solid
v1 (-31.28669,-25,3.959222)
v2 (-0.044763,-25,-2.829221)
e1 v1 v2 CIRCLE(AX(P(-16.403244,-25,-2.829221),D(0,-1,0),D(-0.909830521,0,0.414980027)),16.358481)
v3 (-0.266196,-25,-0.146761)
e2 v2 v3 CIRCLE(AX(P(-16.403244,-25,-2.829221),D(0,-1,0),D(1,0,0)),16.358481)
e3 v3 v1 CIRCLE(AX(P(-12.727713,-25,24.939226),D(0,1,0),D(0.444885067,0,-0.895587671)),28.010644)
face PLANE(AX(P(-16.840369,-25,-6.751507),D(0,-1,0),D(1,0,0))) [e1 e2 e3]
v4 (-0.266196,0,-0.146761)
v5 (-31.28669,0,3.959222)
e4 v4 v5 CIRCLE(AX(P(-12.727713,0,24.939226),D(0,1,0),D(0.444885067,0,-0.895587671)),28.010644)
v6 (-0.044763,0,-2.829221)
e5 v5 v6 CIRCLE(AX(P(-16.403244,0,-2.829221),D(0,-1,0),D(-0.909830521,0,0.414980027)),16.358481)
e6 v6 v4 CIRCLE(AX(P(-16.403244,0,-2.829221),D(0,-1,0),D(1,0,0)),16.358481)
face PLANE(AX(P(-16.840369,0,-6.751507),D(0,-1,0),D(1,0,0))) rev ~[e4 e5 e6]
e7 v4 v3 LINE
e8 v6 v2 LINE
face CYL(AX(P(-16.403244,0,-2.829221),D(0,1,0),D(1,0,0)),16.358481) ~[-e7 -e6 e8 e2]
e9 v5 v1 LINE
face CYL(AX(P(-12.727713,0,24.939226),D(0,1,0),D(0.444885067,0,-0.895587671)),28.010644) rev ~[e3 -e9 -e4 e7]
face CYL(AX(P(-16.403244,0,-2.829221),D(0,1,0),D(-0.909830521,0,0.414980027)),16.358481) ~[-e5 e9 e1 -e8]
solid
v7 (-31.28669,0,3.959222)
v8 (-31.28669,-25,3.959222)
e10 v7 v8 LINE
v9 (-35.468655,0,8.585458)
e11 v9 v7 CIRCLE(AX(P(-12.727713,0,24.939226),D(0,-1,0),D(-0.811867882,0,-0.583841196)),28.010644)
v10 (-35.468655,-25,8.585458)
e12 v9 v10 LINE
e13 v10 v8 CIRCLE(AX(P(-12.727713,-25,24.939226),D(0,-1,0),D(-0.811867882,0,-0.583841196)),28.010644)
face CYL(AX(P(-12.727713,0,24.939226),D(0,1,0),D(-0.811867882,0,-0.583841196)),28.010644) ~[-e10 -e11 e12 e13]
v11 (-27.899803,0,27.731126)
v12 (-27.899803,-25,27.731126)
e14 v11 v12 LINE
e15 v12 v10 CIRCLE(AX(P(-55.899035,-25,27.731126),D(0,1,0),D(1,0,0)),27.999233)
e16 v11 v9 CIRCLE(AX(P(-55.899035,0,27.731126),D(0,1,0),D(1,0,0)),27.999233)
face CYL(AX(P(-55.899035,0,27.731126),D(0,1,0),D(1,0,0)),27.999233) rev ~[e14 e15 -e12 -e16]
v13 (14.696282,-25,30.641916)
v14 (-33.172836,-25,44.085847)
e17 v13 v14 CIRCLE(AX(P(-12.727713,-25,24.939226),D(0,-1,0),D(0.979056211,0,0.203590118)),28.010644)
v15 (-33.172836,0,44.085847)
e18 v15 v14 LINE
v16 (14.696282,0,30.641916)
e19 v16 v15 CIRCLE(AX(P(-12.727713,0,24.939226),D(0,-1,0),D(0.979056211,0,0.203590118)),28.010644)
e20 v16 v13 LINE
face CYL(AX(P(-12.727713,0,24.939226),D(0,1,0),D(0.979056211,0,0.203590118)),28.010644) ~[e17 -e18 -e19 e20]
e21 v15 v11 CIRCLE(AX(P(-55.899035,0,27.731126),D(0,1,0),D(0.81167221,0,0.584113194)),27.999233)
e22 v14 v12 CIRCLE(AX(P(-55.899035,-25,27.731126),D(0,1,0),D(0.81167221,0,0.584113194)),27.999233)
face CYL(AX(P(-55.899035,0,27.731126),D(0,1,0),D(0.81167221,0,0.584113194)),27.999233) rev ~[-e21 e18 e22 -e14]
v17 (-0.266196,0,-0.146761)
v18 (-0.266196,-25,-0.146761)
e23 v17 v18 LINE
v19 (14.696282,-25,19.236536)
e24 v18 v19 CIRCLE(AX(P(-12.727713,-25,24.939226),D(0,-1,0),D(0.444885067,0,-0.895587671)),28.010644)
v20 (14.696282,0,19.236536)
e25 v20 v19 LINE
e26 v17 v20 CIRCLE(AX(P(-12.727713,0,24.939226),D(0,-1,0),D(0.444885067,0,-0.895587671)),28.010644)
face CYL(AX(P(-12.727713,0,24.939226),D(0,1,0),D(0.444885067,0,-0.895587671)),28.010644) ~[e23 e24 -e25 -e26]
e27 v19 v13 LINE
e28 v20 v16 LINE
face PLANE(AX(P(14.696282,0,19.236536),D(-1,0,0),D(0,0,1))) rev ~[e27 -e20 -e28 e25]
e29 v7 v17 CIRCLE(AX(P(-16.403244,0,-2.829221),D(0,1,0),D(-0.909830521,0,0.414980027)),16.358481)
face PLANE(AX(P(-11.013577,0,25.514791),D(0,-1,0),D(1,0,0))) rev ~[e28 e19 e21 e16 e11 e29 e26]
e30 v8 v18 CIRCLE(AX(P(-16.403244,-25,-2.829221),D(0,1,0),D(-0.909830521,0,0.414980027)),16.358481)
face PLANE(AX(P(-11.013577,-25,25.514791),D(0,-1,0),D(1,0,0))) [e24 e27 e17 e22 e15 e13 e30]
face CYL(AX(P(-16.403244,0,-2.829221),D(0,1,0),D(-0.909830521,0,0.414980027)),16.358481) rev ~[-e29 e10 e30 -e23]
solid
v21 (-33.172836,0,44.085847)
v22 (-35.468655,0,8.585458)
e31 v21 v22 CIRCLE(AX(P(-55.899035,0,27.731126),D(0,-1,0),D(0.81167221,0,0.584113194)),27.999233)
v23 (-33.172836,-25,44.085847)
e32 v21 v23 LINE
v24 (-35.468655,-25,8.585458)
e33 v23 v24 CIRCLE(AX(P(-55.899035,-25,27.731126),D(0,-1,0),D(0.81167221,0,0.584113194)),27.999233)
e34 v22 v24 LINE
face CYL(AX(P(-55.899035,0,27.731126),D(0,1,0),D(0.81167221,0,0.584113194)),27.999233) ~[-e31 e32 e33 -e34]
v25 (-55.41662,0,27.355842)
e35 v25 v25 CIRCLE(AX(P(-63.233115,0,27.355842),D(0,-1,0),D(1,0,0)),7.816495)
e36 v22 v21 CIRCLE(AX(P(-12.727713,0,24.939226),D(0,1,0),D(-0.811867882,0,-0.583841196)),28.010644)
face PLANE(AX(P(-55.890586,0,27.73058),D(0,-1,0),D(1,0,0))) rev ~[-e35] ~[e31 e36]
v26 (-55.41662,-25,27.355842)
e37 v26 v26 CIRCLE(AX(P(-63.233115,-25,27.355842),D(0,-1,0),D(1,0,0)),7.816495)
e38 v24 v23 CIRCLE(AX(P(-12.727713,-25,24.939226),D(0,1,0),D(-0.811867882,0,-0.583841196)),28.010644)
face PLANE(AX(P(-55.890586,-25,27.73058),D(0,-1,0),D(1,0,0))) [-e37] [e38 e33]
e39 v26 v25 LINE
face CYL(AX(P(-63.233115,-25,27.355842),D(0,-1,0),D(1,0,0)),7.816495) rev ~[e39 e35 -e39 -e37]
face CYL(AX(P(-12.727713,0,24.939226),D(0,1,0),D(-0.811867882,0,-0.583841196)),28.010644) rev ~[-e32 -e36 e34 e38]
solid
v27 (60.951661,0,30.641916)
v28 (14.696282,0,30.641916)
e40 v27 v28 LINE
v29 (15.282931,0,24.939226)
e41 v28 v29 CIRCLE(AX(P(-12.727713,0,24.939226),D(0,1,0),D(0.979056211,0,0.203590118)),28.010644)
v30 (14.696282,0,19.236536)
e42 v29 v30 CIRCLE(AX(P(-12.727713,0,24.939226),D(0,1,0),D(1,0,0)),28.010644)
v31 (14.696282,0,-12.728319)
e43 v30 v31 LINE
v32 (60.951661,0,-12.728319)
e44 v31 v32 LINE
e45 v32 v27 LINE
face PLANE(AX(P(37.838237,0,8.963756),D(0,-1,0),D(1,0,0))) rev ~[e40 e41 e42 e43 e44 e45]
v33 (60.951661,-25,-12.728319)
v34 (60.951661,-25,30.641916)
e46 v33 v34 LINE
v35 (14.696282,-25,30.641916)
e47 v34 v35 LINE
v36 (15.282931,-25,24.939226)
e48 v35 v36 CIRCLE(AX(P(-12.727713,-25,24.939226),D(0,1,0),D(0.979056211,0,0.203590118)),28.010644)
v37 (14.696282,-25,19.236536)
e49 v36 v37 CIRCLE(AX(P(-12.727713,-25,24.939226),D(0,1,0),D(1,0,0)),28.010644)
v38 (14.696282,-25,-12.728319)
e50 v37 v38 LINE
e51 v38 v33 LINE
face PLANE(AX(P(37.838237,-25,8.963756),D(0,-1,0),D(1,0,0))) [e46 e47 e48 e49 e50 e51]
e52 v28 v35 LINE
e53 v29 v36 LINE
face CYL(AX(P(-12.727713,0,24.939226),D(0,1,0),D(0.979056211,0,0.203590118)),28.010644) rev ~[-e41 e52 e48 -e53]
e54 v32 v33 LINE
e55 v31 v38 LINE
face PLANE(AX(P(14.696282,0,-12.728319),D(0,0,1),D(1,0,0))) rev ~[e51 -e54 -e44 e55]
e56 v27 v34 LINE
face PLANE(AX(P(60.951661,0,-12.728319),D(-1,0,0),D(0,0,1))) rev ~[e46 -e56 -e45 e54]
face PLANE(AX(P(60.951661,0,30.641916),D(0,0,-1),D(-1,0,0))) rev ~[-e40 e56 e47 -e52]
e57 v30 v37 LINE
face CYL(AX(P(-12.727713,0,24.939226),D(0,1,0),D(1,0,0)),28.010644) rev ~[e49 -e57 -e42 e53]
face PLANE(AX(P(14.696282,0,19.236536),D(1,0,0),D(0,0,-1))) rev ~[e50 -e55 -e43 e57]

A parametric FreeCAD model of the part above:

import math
import FreeCAD as App
import Part
import Sketcher

V = App.Vector

doc = App.newDocument("Part")
body = doc.addObject("PartDesign::Body", "Body")

sketch1 = body.newObject("Sketcher::SketchObject", "Sketch")
sketch1.AttachmentSupport = (doc.getObject("XZ_Plane"), [""])
sketch1.MapMode = "FlatFace"
sketch1.addGeometry(Part.ArcOfCircle(Part.Circle(V(-13, 25, 0), V(0, 0, 1), 28), math.radians(137), math.radians(216)), False)
sketch1.addGeometry(Part.ArcOfCircle(Part.Circle(V(-56, 28, 0), V(0, 0, 1), 28), math.radians(36), math.radians(317)), False)
sketch1.addConstraint(Sketcher.Constraint("Coincident", 0, 1, 1, 1))
sketch1.addConstraint(Sketcher.Constraint("Coincident", 1, 2, 0, 2))
sketch1.addConstraint(Sketcher.Constraint("Radius", 0, 28.010644))
sketch1.addConstraint(Sketcher.Constraint("Radius", 1, 27.999233))
sketch1.addConstraint(Sketcher.Constraint("DistanceY", 0, 3, 1, 3, 2.7919))
sketch1.addConstraint(Sketcher.Constraint("DistanceX", 1, 3, 0, 1, 22.726199))
sketch1.addConstraint(Sketcher.Constraint("DistanceY", -1, 1, 1, 2, 8.585458))
sketch1.addConstraint(Sketcher.Constraint("DistanceX", 0, 3, -1, 1, 12.727713))
pad1 = body.newObject("PartDesign::Pad", "Pad")
pad1.Profile = sketch1
pad1.Length = 25

sketch2 = body.newObject("Sketcher::SketchObject", "Sketch001")
sketch2.AttachmentSupport = (doc.getObject("XZ_Plane"), [""])
sketch2.MapMode = "FlatFace"
sketch2.AttachmentOffset = App.Placement(V(0, 0, 25), App.Rotation())
sketch2.addGeometry(Part.Circle(V(-63, 27, 0), V(0, 0, 1), 8), False)
sketch2.addConstraint(Sketcher.Constraint("Diameter", 0, 15.63299))
sketch2.addConstraint(Sketcher.Constraint("DistanceX", 0, 3, -1, 1, 63.233115))
sketch2.addConstraint(Sketcher.Constraint("DistanceY", -1, 1, 0, 3, 27.355842))
pocket1 = body.newObject("PartDesign::Pocket", "Pocket")
pocket1.Profile = sketch2
pocket1.Length = 25
body2 = doc.addObject("PartDesign::Body", "Body001")

sketch3 = body2.newObject("Sketcher::SketchObject", "Sketch002")
sketch3.AttachmentSupport = (doc.getObject("XZ_Plane001"), [""])
sketch3.MapMode = "FlatFace"
sketch3.addGeometry(Part.ArcOfCircle(Part.Circle(V(-56, 28, 0), V(0, 0, 1), 28), math.radians(0), math.radians(36)), False)
sketch3.addGeometry(Part.ArcOfCircle(Part.Circle(V(-56, 28, 0), V(0, 0, 1), 28), math.radians(-43), math.radians(0)), False)
sketch3.addGeometry(Part.ArcOfCircle(Part.Circle(V(-13, 25, 0), V(0, 0, 1), 28), math.radians(-144.28), math.radians(-131.5)), False)
sketch3.addGeometry(Part.ArcOfCircle(Part.Circle(V(-16, -3, 0), V(0, 0, 1), 16), math.radians(9), math.radians(155)), False)
sketch3.addGeometry(Part.ArcOfCircle(Part.Circle(V(-13, 25, 0), V(0, 0, 1), 28), math.radians(-64), math.radians(-12)), False)
sketch3.addGeometry(Part.LineSegment(V(15, 19, 0), V(15, 31, 0)), False)
sketch3.addGeometry(Part.ArcOfCircle(Part.Circle(V(-13, 25, 0), V(0, 0, 1), 28), math.radians(12), math.radians(137)), False)
sketch3.addConstraint(Sketcher.Constraint("Tangent", 0, 1, 1, 2))
sketch3.addConstraint(Sketcher.Constraint("Coincident", 1, 1, 2, 1))
sketch3.addConstraint(Sketcher.Constraint("Coincident", 2, 2, 3, 2))
sketch3.addConstraint(Sketcher.Constraint("Coincident", 3, 1, 4, 1))
sketch3.addConstraint(Sketcher.Constraint("Coincident", 4, 2, 5, 1))
sketch3.addConstraint(Sketcher.Constraint("Coincident", 5, 2, 6, 1))
sketch3.addConstraint(Sketcher.Constraint("Coincident", 6, 2, 0, 2))
sketch3.addConstraint(Sketcher.Constraint("Vertical", 5))
sketch3.addConstraint(Sketcher.Constraint("Coincident", 4, 3, 2, 3))
sketch3.addConstraint(Sketcher.Constraint("Coincident", 6, 3, 2, 3))
sketch3.addConstraint(Sketcher.Constraint("Equal", 0, 1))
sketch3.addConstraint(Sketcher.Constraint("Equal", 2, 4))
sketch3.addConstraint(Sketcher.Constraint("Equal", 4, 6))
sketch3.addConstraint(Sketcher.Constraint("Horizontal", 1, 3, 0, 1))
sketch3.addConstraint(Sketcher.Constraint("Radius", 3, 16.358481))
sketch3.addConstraint(Sketcher.Constraint("Radius", 0, 27.999233))
sketch3.addConstraint(Sketcher.Constraint("Radius", 2, 28.010644))
sketch3.addConstraint(Sketcher.Constraint("DistanceY", 5, 1, 5, 2, 11.405381))
sketch3.addConstraint(Sketcher.Constraint("DistanceY", 2, 3, 0, 3, 2.7919))
sketch3.addConstraint(Sketcher.Constraint("DistanceX", 0, 3, 6, 2, 22.726199))
sketch3.addConstraint(Sketcher.Constraint("DistanceY", 3, 3, -1, 1, 2.829221))
sketch3.addConstraint(Sketcher.Constraint("DistanceY", -1, 1, 1, 1, 8.585458))
sketch3.addConstraint(Sketcher.Constraint("DistanceX", 2, 2, -1, 1, 31.28669))
sketch3.addConstraint(Sketcher.Constraint("DistanceY", 3, 1, -1, 1, 0.146761))
pad2 = body2.newObject("PartDesign::Pad", "Pad001")
pad2.Profile = sketch3
pad2.Length = 25
body3 = doc.addObject("PartDesign::Body", "Body002")

sketch4 = body3.newObject("Sketcher::SketchObject", "Sketch003")
sketch4.AttachmentSupport = (doc.getObject("XZ_Plane002"), [""])
sketch4.MapMode = "FlatFace"
sketch4.addGeometry(Part.ArcOfCircle(Part.Circle(V(-12.7, 24.9, 0), V(0, 0, 1), 28), math.radians(-131), math.radians(-64)), False)
sketch4.addGeometry(Part.ArcOfCircle(Part.Circle(V(-16.4, -2.8, 0), V(0, 0, 1), 16.4), math.radians(155), math.radians(360)), False)
sketch4.addGeometry(Part.ArcOfCircle(Part.Circle(V(-16.4, -2.8, 0), V(0, 0, 1), 16.4), math.radians(0), math.radians(9.44)), False)
sketch4.addConstraint(Sketcher.Constraint("Coincident", 0, 1, 1, 1))
sketch4.addConstraint(Sketcher.Constraint("Tangent", 1, 2, 2, 1))
sketch4.addConstraint(Sketcher.Constraint("Coincident", 2, 2, 0, 2))
sketch4.addConstraint(Sketcher.Constraint("Equal", 1, 2))
sketch4.addConstraint(Sketcher.Constraint("Horizontal", 2, 3, 1, 2))
sketch4.addConstraint(Sketcher.Constraint("Radius", 1, 16.358481))
sketch4.addConstraint(Sketcher.Constraint("Radius", 0, 28.010644))
sketch4.addConstraint(Sketcher.Constraint("DistanceY", 1, 3, -1, 1, 2.829221))
sketch4.addConstraint(Sketcher.Constraint("DistanceX", 0, 1, -1, 1, 31.28669))
sketch4.addConstraint(Sketcher.Constraint("DistanceY", 2, 2, -1, 1, 0.146761))
sketch4.addConstraint(Sketcher.Constraint("DistanceX", 1, 3, 0, 3, 3.675531))
pad3 = body3.newObject("PartDesign::Pad", "Pad002")
pad3.Profile = sketch4
pad3.Length = 25
body4 = doc.addObject("PartDesign::Body", "Body003")

sketch5 = body4.newObject("Sketcher::SketchObject", "Sketch004")
sketch5.AttachmentSupport = (doc.getObject("XZ_Plane003"), [""])
sketch5.MapMode = "FlatFace"
sketch5.addGeometry(Part.LineSegment(V(61, 31, 0), V(15, 31, 0)), False)
sketch5.addGeometry(Part.ArcOfCircle(Part.Circle(V(-13, 25, 0), V(0, 0, 1), 28), math.radians(0), math.radians(11.75)), False)
sketch5.addGeometry(Part.ArcOfCircle(Part.Circle(V(-13, 25, 0), V(0, 0, 1), 28), math.radians(-11.75), math.radians(0)), False)
sketch5.addGeometry(Part.LineSegment(V(15, 19, 0), V(15, -13, 0)), False)
sketch5.addGeometry(Part.LineSegment(V(15, -13, 0), V(61, -13, 0)), False)
sketch5.addGeometry(Part.LineSegment(V(61, -13, 0), V(61, 31, 0)), False)
sketch5.addConstraint(Sketcher.Constraint("Coincident", 0, 2, 1, 2))
sketch5.addConstraint(Sketcher.Constraint("Tangent", 1, 1, 2, 2))
sketch5.addConstraint(Sketcher.Constraint("Coincident", 2, 1, 3, 1))
sketch5.addConstraint(Sketcher.Constraint("Coincident", 3, 2, 4, 1))
sketch5.addConstraint(Sketcher.Constraint("Coincident", 4, 2, 5, 1))
sketch5.addConstraint(Sketcher.Constraint("Coincident", 5, 2, 0, 1))
sketch5.addConstraint(Sketcher.Constraint("Horizontal", 0))
sketch5.addConstraint(Sketcher.Constraint("Vertical", 3))
sketch5.addConstraint(Sketcher.Constraint("Horizontal", 4))
sketch5.addConstraint(Sketcher.Constraint("Vertical", 5))
sketch5.addConstraint(Sketcher.Constraint("Equal", 1, 2))
sketch5.addConstraint(Sketcher.Constraint("Horizontal", 2, 3, 1, 1))
sketch5.addConstraint(Sketcher.Constraint("Vertical", 0, 2, 2, 1))
sketch5.addConstraint(Sketcher.Constraint("Radius", 1, 28.010644))
sketch5.addConstraint(Sketcher.Constraint("DistanceX", 0, 2, 0, 1, 46.25538))
sketch5.addConstraint(Sketcher.Constraint("DistanceY", 3, 2, 3, 1, 31.964854))
sketch5.addConstraint(Sketcher.Constraint("DistanceY", 5, 1, 5, 2, 43.370235))
sketch5.addConstraint(Sketcher.Constraint("DistanceX", -1, 1, 0, 2, 14.696282))
sketch5.addConstraint(Sketcher.Constraint("DistanceY", 3, 2, -1, 1, 12.728319))
pad4 = body4.newObject("PartDesign::Pad", "Pad003")
pad4.Profile = sketch5
pad4.Length = 25

doc.recompute()
